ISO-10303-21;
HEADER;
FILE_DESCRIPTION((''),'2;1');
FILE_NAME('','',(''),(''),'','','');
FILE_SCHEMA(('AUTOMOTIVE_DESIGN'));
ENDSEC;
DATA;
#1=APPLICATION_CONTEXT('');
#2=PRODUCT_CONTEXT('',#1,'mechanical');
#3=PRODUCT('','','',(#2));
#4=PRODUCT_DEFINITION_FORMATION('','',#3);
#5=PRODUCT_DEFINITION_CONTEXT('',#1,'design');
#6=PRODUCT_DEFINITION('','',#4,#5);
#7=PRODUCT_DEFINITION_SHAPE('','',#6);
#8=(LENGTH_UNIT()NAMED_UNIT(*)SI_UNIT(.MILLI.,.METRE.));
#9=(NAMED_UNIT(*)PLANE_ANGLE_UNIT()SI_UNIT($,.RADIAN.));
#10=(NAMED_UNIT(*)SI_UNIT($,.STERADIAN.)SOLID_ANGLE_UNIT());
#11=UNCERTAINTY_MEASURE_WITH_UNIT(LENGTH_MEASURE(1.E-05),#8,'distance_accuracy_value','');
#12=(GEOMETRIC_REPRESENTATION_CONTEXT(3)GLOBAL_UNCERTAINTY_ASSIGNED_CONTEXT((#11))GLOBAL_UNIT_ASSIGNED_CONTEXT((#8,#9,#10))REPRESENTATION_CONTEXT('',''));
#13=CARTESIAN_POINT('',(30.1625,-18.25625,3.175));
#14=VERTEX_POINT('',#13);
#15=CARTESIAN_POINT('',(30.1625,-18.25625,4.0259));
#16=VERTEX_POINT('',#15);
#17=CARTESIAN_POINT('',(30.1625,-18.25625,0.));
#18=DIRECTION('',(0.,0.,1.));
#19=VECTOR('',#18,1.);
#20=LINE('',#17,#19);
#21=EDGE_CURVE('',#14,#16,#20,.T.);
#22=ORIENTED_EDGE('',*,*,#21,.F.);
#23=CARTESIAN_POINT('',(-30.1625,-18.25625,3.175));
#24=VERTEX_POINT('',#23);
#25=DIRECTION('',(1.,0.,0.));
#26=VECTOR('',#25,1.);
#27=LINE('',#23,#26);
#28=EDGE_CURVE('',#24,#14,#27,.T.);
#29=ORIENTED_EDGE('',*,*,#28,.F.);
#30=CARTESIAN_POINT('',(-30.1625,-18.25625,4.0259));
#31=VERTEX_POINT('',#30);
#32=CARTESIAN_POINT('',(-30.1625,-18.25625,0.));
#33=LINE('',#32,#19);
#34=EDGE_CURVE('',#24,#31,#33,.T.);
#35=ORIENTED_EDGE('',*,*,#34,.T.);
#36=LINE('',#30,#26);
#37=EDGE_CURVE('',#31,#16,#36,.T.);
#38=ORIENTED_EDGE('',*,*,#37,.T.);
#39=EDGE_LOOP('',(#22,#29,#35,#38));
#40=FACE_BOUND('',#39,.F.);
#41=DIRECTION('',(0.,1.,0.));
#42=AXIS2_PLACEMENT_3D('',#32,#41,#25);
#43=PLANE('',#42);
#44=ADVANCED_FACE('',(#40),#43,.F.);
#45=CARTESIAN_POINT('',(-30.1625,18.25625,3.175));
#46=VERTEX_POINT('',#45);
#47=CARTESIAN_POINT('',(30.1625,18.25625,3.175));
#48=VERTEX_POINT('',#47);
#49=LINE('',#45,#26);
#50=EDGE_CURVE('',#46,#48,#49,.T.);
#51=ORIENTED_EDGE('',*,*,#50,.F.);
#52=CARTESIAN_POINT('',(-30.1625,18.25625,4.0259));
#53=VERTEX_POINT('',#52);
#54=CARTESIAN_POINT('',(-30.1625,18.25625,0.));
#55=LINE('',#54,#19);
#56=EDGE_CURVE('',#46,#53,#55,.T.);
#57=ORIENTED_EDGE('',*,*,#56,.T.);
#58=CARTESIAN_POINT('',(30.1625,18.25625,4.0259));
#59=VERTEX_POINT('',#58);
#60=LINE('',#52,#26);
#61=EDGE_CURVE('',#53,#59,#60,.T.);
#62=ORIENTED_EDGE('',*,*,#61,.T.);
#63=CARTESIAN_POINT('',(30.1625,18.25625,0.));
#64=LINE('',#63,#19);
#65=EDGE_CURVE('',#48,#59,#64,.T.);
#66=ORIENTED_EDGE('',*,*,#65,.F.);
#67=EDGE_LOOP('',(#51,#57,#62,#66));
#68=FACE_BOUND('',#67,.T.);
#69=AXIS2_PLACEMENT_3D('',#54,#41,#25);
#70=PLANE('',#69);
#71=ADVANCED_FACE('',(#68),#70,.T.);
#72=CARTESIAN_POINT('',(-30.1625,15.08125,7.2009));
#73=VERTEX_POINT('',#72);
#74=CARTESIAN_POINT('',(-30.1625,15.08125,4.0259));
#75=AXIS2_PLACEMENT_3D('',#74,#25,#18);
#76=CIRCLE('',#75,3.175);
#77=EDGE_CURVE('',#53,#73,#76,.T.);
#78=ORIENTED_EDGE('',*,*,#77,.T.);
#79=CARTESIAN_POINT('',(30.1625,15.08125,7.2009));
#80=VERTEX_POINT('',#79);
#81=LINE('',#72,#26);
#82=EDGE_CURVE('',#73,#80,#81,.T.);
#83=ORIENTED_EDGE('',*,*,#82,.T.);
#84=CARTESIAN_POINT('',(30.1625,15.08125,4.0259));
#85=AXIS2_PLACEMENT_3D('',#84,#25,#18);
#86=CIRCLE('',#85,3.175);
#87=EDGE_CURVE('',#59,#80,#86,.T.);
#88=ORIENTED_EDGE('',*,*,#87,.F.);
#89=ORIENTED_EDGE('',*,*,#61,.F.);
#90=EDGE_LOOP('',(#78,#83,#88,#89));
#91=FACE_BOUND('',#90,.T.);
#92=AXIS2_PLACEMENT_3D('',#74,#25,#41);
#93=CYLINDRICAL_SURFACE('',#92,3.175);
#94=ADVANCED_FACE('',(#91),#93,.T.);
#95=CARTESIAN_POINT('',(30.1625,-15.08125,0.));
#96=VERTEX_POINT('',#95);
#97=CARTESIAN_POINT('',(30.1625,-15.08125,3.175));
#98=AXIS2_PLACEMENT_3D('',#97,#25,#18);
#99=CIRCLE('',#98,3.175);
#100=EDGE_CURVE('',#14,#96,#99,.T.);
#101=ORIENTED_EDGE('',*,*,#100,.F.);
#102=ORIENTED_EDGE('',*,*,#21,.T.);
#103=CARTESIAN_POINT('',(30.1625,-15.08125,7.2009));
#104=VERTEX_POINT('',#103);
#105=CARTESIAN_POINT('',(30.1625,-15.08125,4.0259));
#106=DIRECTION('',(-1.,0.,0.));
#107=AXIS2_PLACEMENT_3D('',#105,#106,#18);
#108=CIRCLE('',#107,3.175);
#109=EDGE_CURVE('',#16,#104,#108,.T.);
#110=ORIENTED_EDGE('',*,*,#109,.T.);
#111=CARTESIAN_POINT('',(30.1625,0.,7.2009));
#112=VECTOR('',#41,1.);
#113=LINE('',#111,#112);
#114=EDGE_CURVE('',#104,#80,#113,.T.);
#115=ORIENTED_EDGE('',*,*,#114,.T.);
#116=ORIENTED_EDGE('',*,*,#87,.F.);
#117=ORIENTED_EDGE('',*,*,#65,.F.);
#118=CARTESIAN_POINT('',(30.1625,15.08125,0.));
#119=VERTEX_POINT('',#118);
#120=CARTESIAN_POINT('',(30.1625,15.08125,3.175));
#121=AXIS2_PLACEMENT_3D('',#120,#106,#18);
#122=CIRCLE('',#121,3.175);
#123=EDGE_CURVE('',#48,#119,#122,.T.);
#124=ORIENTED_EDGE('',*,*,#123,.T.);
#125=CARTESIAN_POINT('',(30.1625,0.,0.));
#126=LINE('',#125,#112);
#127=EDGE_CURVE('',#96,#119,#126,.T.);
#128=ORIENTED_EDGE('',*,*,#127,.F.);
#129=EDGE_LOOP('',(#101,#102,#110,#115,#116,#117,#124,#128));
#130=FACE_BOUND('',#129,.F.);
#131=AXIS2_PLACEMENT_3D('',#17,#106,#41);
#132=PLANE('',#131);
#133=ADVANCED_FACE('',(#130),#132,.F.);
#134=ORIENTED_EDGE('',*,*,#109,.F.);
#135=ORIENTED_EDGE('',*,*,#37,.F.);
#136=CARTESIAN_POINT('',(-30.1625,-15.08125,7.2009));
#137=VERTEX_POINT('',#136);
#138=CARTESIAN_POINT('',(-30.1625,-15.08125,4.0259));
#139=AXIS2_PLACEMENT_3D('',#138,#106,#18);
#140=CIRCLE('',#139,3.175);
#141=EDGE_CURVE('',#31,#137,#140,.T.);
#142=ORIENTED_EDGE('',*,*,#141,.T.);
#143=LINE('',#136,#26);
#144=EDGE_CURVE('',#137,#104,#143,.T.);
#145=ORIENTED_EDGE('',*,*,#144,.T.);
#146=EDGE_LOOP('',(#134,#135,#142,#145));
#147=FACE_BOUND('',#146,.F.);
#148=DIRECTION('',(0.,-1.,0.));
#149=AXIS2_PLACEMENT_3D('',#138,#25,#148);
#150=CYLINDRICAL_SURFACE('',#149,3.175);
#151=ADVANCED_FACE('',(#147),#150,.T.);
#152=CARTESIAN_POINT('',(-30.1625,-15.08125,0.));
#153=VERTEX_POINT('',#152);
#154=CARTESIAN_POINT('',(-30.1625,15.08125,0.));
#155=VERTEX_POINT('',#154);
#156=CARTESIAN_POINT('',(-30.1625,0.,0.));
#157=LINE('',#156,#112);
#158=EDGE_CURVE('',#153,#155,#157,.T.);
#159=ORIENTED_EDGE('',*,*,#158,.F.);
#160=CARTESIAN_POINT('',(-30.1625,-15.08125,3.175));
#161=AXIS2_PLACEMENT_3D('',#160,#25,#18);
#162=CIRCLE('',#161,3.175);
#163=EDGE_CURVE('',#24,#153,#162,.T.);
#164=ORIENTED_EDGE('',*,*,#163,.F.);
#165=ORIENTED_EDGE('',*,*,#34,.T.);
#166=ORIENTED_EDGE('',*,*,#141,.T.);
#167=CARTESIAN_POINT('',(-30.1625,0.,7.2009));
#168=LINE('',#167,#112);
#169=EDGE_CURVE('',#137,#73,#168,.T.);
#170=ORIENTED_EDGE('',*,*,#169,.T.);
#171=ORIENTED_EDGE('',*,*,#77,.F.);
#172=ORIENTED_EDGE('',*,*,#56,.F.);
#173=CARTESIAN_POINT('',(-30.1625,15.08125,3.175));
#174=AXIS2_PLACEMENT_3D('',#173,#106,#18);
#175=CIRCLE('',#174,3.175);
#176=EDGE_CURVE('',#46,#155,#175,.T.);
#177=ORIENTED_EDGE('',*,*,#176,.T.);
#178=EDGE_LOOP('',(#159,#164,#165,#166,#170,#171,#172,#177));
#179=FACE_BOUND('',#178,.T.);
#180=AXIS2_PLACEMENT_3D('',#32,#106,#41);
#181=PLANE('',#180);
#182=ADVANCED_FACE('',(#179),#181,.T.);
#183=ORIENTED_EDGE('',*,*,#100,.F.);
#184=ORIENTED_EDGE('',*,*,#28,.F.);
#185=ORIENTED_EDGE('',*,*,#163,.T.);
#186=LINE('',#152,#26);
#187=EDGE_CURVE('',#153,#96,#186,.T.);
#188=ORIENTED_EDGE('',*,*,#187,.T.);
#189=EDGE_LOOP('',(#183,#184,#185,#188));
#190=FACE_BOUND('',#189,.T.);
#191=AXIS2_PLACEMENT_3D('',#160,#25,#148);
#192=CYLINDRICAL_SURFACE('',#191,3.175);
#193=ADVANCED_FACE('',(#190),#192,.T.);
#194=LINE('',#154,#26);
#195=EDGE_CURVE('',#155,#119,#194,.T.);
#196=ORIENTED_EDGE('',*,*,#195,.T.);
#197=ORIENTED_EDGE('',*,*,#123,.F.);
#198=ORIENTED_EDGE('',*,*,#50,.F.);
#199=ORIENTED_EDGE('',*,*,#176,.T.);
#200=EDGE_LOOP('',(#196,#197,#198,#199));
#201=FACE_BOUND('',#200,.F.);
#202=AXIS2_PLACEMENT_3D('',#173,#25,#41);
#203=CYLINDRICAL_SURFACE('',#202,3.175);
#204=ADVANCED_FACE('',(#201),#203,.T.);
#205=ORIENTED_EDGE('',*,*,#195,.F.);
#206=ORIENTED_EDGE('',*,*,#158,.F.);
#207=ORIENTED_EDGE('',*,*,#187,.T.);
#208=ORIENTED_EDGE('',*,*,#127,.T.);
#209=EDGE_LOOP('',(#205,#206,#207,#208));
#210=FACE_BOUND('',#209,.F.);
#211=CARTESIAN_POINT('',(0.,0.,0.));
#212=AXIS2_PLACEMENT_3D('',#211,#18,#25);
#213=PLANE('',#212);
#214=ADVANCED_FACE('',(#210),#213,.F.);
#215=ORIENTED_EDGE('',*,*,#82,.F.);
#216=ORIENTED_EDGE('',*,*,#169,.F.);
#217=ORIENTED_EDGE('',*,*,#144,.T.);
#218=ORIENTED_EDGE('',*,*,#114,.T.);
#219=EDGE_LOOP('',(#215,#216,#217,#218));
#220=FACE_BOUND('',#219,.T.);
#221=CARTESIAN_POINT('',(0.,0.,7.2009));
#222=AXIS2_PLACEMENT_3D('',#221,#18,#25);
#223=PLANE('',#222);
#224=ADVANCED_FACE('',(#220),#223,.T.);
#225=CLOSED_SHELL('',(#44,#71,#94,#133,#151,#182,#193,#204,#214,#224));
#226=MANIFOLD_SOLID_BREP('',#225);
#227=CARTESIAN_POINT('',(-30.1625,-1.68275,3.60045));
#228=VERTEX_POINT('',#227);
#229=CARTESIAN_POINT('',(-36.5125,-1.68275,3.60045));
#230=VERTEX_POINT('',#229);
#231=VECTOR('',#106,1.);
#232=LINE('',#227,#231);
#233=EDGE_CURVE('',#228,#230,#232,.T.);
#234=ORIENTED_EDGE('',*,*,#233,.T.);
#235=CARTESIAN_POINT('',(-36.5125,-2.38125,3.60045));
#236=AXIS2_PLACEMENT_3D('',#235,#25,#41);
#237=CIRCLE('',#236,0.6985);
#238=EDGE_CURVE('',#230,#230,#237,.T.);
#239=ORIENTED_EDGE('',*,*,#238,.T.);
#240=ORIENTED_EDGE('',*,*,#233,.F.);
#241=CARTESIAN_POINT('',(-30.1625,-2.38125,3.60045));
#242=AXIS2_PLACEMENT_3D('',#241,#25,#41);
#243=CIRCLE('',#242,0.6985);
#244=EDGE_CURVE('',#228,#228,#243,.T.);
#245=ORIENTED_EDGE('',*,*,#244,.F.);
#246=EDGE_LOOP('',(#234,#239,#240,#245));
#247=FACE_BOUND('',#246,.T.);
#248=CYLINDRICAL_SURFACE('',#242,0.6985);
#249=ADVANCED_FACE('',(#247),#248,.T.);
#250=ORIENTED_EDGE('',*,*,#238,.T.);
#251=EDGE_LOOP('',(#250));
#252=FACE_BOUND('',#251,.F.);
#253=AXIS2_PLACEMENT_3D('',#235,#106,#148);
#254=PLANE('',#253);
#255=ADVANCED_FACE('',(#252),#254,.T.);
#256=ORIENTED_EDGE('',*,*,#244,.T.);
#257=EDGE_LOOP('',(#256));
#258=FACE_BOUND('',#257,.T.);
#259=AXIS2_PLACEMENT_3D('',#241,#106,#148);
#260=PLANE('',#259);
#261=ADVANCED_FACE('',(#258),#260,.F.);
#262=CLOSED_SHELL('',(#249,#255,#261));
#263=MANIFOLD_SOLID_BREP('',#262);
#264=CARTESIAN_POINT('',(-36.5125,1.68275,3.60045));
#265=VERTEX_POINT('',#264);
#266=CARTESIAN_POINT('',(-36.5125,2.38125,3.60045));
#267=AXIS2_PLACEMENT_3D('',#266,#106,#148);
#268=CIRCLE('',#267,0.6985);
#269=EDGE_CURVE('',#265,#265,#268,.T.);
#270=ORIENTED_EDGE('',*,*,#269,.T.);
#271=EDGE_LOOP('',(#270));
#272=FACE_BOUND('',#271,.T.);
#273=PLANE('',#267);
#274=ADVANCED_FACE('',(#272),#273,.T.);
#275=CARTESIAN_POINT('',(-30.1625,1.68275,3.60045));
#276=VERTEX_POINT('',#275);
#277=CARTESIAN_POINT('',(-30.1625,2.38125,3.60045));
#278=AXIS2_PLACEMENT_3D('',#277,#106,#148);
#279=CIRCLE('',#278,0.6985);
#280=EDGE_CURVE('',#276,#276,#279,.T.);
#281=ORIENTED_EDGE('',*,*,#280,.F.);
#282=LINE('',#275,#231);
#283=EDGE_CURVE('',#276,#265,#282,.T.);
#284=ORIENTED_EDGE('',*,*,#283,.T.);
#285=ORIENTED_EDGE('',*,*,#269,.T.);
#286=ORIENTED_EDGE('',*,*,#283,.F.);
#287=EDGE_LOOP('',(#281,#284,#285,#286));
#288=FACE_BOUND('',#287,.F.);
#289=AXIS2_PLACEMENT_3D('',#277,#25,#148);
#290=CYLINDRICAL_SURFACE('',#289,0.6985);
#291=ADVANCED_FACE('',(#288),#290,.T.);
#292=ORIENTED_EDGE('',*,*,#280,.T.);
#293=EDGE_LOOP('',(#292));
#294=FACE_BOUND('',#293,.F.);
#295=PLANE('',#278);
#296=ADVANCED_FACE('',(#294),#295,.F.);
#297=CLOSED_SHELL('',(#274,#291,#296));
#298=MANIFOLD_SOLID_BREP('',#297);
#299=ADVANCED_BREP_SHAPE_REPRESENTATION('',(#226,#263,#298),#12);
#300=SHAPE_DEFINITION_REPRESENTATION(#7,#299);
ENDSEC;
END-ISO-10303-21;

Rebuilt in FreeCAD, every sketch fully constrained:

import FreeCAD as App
import Part
import Sketcher

V = App.Vector
Q = App.Units.Quantity


def edges_at(feature, points):
    """Names of the edges that pass closest to the given points."""
    edges = feature.Shape.Edges
    near = lambda p: min(range(len(edges)), key=lambda i: edges[i].distToShape(Part.Vertex(*p))[0])
    return sorted({f"Edge{near(p) + 1}" for p in points})

doc = App.newDocument("Part")
body = doc.addObject("PartDesign::Body", "Body")

# Sketch on XY plane
sketch1 = body.newObject("Sketcher::SketchObject", "Sketch")
sketch1.AttachmentSupport = (doc.getObject("XY_Plane"), [""])
sketch1.MapMode = "FlatFace"
sketch1.addGeometry(Part.LineSegment(V(-30, 18, 0), V(-30, -18, 0)), False)
sketch1.addGeometry(Part.LineSegment(V(-30, -18, 0), V(30, -18, 0)), False)
sketch1.addGeometry(Part.LineSegment(V(30, -18, 0), V(30, 18, 0)), False)
sketch1.addGeometry(Part.LineSegment(V(30, 18, 0), V(-30, 18, 0)), False)
sketch1.addConstraint(Sketcher.Constraint("Coincident", 0, 2, 1, 1))
sketch1.addConstraint(Sketcher.Constraint("Coincident", 1, 2, 2, 1))
sketch1.addConstraint(Sketcher.Constraint("Coincident", 2, 2, 3, 1))
sketch1.addConstraint(Sketcher.Constraint("Coincident", 3, 2, 0, 1))
sketch1.addConstraint(Sketcher.Constraint("Vertical", 0))
sketch1.addConstraint(Sketcher.Constraint("Horizontal", 1))
sketch1.addConstraint(Sketcher.Constraint("Vertical", 2))
sketch1.addConstraint(Sketcher.Constraint("Horizontal", 3))
sketch1.addConstraint(Sketcher.Constraint("Symmetric", 0, 2, 2, 2, -1, 1))
sketch1.addConstraint(Sketcher.Constraint("DistanceX", 1, 1, 1, 2, Q("2.375 in")))
sketch1.addConstraint(Sketcher.Constraint("DistanceY", 0, 2, 0, 1, Q("1.4375 in")))
pad1 = body.newObject("PartDesign::Pad", "Pad")
pad1.Profile = sketch1
pad1.Length = Q("0.2835 in")
doc.recompute()

fillet = body.newObject("PartDesign::Fillet", "Fillet")
fillet.Base = (pad1, edges_at(pad1, [
    (0, -18.256, 7.201),
    (0, -18.256, 0),
    (0, 18.256, 7.201),
    (0, 18.256, 0),
]))
fillet.Radius = Q("0.125 in")
body2 = doc.addObject("PartDesign::Body", "Body001")

# Sketch on YZ plane
sketch2 = body2.newObject("Sketcher::SketchObject", "Sketch001")
sketch2.AttachmentSupport = (doc.getObject("YZ_Plane001"), [""])
sketch2.MapMode = "FlatFace"
sketch2.AttachmentOffset = App.Placement(V(0, 0, -1.1875 * 25.4), App.Rotation())
sketch2.addGeometry(Part.Circle(V(2.4, 3.6, 0), V(0, 0, 1), 0.7), False)
sketch2.addConstraint(Sketcher.Constraint("Diameter", 0, Q("0.055 in")))
sketch2.addConstraint(Sketcher.Constraint("DistanceX", -1, 1, 0, 3, Q("0.09375 in")))
sketch2.addConstraint(Sketcher.Constraint("DistanceY", -1, 1, 0, 3, Q("3.60045 mm")))
pad2 = body2.newObject("PartDesign::Pad", "Pad001")
pad2.Profile = sketch2
pad2.Length = Q("0.25 in")
pad2.Reversed = True
body3 = doc.addObject("PartDesign::Body", "Body002")
doc.recompute()

mirroring = doc.addObject("Part::Mirroring", "Mirroring")
mirroring.Source = body2
mirroring.Base = V(0, 0, 0)
mirroring.Normal = V(0, -1, 0)
body3.BaseFeature = mirroring
doc.recompute()
mirroring.Visibility = False

doc.recompute()
